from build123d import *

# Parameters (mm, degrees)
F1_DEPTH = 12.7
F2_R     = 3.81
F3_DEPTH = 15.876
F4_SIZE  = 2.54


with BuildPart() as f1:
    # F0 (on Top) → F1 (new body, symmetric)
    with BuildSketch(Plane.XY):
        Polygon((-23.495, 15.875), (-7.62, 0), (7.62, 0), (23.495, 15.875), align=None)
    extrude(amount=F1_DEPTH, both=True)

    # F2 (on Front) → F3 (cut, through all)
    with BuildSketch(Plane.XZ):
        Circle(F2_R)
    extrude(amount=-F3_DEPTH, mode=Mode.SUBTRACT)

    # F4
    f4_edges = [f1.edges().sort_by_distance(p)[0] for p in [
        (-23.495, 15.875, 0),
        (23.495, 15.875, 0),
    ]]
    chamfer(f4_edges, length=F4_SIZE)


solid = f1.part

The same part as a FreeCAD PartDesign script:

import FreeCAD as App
import Part
import Sketcher
Q = App.Units.Quantity


def edges_at(feature, points):
    """Names of the edges that pass closest to the given points."""
    edges = feature.Shape.Edges
    near = lambda p: min(range(len(edges)), key=lambda i: edges[i].distToShape(Part.Vertex(*p))[0])
    return sorted({f"Edge{near(p) + 1}" for p in points})

doc = App.newDocument("Part")
params = doc.addObject("Spreadsheet::Sheet", "Params")
for row, (alias, value) in enumerate([
    ("sketch1_width", "0.6 in"),
    ("sketch1_width2", "1.85 in"),
    ("pad1_length", "1 in"),
    ("sketch2_diameter", "0.3 in"),
    ("chamfer_size", "0.1 in"),
], start=1):
    params.set(f"A{row}", alias)
    params.set(f"B{row}", "=" + value)
    params.setAlias(f"B{row}", alias)

body = doc.addObject("PartDesign::Body", "Body")

# Sketch on XY plane
sketch1 = body.newObject("Sketcher::SketchObject", "Sketch")
sketch1.AttachmentSupport = (doc.getObject("XY_Plane"), [""])
sketch1.MapMode = "FlatFace"
sketch1.addGeometry([
    Part.LineSegment(App.Vector(-23.495, 15.875, 0), App.Vector(-7.62, 0, 0)),
    Part.LineSegment(App.Vector(-7.62, 0, 0), App.Vector(7.62, 0, 0)),
    Part.LineSegment(App.Vector(7.62, 0, 0), App.Vector(23.495, 15.875, 0)),
    Part.LineSegment(App.Vector(23.495, 15.875, 0), App.Vector(-23.495, 15.875, 0)),
], False)
sketch1.addConstraint([
    Sketcher.Constraint("Coincident", 0, 2, 1, 1),
    Sketcher.Constraint("Coincident", 1, 2, 2, 1),
    Sketcher.Constraint("Coincident", 2, 2, 3, 1),
    Sketcher.Constraint("Coincident", 3, 2, 0, 1),
    Sketcher.Constraint("Horizontal", 1),
    Sketcher.Constraint("Horizontal", 3),
    Sketcher.Constraint("Symmetric", 0, 2, 1, 2, -1, 1),
    Sketcher.Constraint("Perpendicular", 0, 2),
    Sketcher.Constraint("Equal", 0, 2),
    Sketcher.Constraint("DistanceX", 1, 1, 1, 2, Q("0.6 in")),
    Sketcher.Constraint("DistanceX", 3, 2, 3, 1, Q("1.85 in")),
])
sketch1.setExpression("Constraints[9]", "Params.sketch1_width")
sketch1.setExpression("Constraints[10]", "Params.sketch1_width2")
pad1 = body.newObject("PartDesign::Pad", "Pad")
pad1.Profile = sketch1
pad1.setExpression("Length", "Params.pad1_length")
pad1.Midplane = True

# Sketch on XZ plane
sketch2 = body.newObject("Sketcher::SketchObject", "Sketch001")
sketch2.AttachmentSupport = (doc.getObject("XZ_Plane"), [""])
sketch2.MapMode = "FlatFace"
sketch2.addGeometry(Part.Circle(App.Vector(0, 0, 0), App.Vector(0, 0, 1), 3.81), False)
sketch2.addConstraint([
    Sketcher.Constraint("Coincident", 0, 3, -1, 1),
    Sketcher.Constraint("Diameter", 0, Q("0.3 in")),
])
sketch2.setExpression("Constraints[1]", "Params.sketch2_diameter")
pocket1 = body.newObject("PartDesign::Pocket", "Pocket")
pocket1.Profile = sketch2
pocket1.Type = "ThroughAll"
doc.recompute()

chamfer = body.newObject("PartDesign::Chamfer", "Chamfer")
chamfer.Base = (pocket1, edges_at(pocket1, [(-23.495, 15.875, 0), (23.495, 15.875, 0)]))
chamfer.setExpression("Size", "Params.chamfer_size")

doc.recompute()
